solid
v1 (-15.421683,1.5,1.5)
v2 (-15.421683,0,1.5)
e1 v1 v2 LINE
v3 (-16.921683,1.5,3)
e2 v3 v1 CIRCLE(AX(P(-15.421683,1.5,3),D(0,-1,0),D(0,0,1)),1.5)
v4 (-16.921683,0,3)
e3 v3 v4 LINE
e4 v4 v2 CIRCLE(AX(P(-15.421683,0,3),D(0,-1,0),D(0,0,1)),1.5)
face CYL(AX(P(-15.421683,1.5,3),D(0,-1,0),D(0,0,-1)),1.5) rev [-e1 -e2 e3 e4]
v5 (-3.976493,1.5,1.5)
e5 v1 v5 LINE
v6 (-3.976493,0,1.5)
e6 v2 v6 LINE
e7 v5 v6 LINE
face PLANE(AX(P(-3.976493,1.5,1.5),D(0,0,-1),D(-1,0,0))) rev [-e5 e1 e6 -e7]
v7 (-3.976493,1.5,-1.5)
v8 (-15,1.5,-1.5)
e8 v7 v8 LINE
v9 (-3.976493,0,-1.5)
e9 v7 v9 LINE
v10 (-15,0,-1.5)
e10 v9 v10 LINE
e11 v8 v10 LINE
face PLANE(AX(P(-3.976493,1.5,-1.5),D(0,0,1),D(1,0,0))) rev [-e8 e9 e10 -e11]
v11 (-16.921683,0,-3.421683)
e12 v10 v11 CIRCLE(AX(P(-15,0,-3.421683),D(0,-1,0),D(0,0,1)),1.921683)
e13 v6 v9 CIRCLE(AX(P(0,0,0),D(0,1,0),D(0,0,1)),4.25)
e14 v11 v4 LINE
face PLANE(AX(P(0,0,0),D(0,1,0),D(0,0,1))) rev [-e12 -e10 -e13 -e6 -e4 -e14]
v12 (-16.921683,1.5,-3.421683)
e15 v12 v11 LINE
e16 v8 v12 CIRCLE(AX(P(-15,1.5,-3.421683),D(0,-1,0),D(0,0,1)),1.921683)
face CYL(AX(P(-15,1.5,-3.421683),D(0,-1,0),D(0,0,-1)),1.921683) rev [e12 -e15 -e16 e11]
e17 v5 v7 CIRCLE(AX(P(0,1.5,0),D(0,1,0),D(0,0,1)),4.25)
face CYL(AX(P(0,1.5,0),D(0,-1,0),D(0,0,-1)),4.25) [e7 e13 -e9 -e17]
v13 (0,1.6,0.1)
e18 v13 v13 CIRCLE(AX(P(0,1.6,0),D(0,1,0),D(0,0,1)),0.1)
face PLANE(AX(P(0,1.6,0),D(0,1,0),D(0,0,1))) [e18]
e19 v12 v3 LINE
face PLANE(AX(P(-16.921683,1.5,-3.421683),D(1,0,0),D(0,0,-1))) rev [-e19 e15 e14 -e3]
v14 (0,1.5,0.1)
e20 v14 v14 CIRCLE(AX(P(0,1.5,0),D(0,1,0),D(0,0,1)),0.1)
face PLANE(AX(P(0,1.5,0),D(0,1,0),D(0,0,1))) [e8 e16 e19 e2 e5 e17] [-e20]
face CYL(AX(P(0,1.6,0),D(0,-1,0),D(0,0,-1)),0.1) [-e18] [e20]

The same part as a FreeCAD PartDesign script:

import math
import FreeCAD as App
import Part
import Sketcher
from FreeCAD import Vector

doc = App.newDocument("Part")
params = doc.addObject("Spreadsheet::Sheet", "Params")
for row, (alias, value) in enumerate([
    ("sketch1_radius", "1.5 mm"),
    ("sketch1_radius2", "4.25 mm"),
    ("pad1_length", "1.5 mm"),
    ("sketch2_diameter", "0.2 mm"),
    ("pad2_length", "0.1 mm"),
], start=1):
    params.set(f"A{row}", alias)
    params.set(f"B{row}", "=" + value)
    params.setAlias(f"B{row}", alias)

body = doc.addObject("PartDesign::Body", "Body")

# Sketch on XZ plane
sketch1 = doc.addObject("Sketcher::SketchObject", "Sketch")
body.addObject(sketch1)
sketch1.AttachmentSupport = (doc.XZ_Plane, [""])
sketch1.MapMode = "FlatFace"
sketch1.addGeometry([
    Part.LineSegment(Vector(-4, -1.5, 0), Vector(-15, -1.5, 0)),  # 0
    Part.ArcOfCircle(Part.Circle(Vector(-15, -3.4, 0), Vector(0, 0, 1), 1.9), math.radians(90), math.radians(180)),  # 1
    Part.LineSegment(Vector(-16.9, -3.4, 0), Vector(-16.9, 3, 0)),  # 2
    Part.ArcOfCircle(Part.Circle(Vector(-15.4, 3, 0), Vector(0, 0, 1), 1.5), math.radians(180), math.radians(270)),  # 3
    Part.LineSegment(Vector(-15.4, 1.5, 0), Vector(-4, 1.5, 0)),  # 4
    Part.ArcOfCircle(Part.Circle(Vector(0, 0, 0), Vector(0, 0, 1), 4.2), math.radians(-159), math.radians(159)),  # 5
], False)
sketch1.addConstraint([
    Sketcher.Constraint("Tangent", 0, 2, 1, 1),
    Sketcher.Constraint("Tangent", 1, 2, 2, 1),
    Sketcher.Constraint("Tangent", 2, 2, 3, 1),
    Sketcher.Constraint("Tangent", 3, 2, 4, 1),
    Sketcher.Constraint("Coincident", 4, 2, 5, 2),
    Sketcher.Constraint("Coincident", 5, 1, 0, 1),
    Sketcher.Constraint("Horizontal", 0),
    Sketcher.Constraint("Vertical", 2),
    Sketcher.Constraint("Horizontal", 4),
    Sketcher.Constraint("Coincident", 5, 3, -1, 1),
    Sketcher.Constraint("Vertical", 4, 2, 5, 1),
    Sketcher.Constraint("Radius", 3, 1.5),
    Sketcher.Constraint("Radius", 5, 4.25),
    Sketcher.Constraint("DistanceX", 1, 3, -1, 1, 15.0),
    Sketcher.Constraint("DistanceY", -1, 1, 3, 3, 3.0),
    Sketcher.Constraint("Radius", 1, 1.921683),
])
sketch1.setExpression("Constraints[11]", "Params.sketch1_radius")
sketch1.setExpression("Constraints[12]", "Params.sketch1_radius2")
pad1 = doc.addObject("PartDesign::Pad", "Pad")
body.addObject(pad1)
pad1.Profile = sketch1
pad1.setExpression("Length", "Params.pad1_length")
pad1.Reversed = True

# Sketch on XZ plane
sketch2 = doc.addObject("Sketcher::SketchObject", "Sketch001")
body.addObject(sketch2)
sketch2.AttachmentSupport = (doc.XZ_Plane, [""])
sketch2.MapMode = "FlatFace"
sketch2.AttachmentOffset = App.Placement(Vector(0, 0, -1.5), App.Rotation())
sketch2.addGeometry(Part.Circle(Vector(0, 0, 0), Vector(0, 0, 1), 0.1), False)
sketch2.addConstraint([
    Sketcher.Constraint("Coincident", 0, 3, -1, 1),
    Sketcher.Constraint("Diameter", 0, 0.2),
])
sketch2.setExpression("Constraints[1]", "Params.sketch2_diameter")
pad2 = doc.addObject("PartDesign::Pad", "Pad001")
body.addObject(pad2)
pad2.Profile = sketch2
pad2.setExpression("Length", "Params.pad2_length")
pad2.Reversed = True

doc.recompute()
